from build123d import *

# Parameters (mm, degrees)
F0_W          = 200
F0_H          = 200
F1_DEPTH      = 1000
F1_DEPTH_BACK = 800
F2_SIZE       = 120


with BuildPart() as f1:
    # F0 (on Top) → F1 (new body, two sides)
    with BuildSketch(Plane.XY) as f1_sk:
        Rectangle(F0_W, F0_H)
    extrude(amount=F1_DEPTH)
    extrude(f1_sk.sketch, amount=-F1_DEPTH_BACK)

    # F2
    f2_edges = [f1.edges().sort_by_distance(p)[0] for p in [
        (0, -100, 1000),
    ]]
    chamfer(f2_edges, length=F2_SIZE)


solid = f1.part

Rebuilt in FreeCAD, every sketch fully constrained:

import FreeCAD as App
import Part
import Sketcher
from FreeCAD import Vector


def edges_at(feature, points):
    """Names of the edges that pass closest to the given points."""
    edges = feature.Shape.Edges
    near = lambda p: min(range(len(edges)), key=lambda i: edges[i].distToShape(Part.Vertex(*p))[0])
    return sorted({f"Edge{near(p) + 1}" for p in points})


def add_polygon(sketch, points):
    """Adds a closed chain of lines whose ends are joined by coincident constraints."""
    first, n = sketch.GeometryCount, len(points)
    for a, b in zip(points, points[1:] + points[:1]):
        sketch.addGeometry(Part.LineSegment(App.Vector(*a, 0), App.Vector(*b, 0)), False)
    for i in range(n):
        sketch.addConstraint(Sketcher.Constraint("Coincident", first + i, 2, first + (i + 1) % n, 1))

doc = App.newDocument("Part")
params = doc.addObject("Spreadsheet::Sheet", "Params")
for row, (alias, value) in enumerate([
    ("sketch1_width", "200 mm"),
    ("pad1_length", "1000 mm"),
    ("pad1_length2", "800 mm"),
    ("chamfer_size", "120 mm"),
], start=1):
    params.set(f"A{row}", alias)
    params.set(f"B{row}", "=" + value)
    params.setAlias(f"B{row}", alias)

body = doc.addObject("PartDesign::Body", "Body")

# Sketch on XY plane
sketch1 = body.newObject("Sketcher::SketchObject", "Sketch")
sketch1.AttachmentSupport = (doc.getObject("XY_Plane"), [""])
sketch1.MapMode = "FlatFace"
add_polygon(sketch1, [(-100, 100), (-100, -100), (100, -100), (100, 100)])  # lines 0-3
sketch1.addConstraint([
    Sketcher.Constraint("Vertical", 0),
    Sketcher.Constraint("Horizontal", 1),
    Sketcher.Constraint("Vertical", 2),
    Sketcher.Constraint("Horizontal", 3),
    Sketcher.Constraint("Symmetric", 0, 2, 2, 2, -1, 1),
    Sketcher.Constraint("Equal", 3, 0),
    Sketcher.Constraint("DistanceX", 1, 1, 1, 2, 200.0),
])
sketch1.setExpression("Constraints[10]", "Params.sketch1_width")
pad1 = body.newObject("PartDesign::Pad", "Pad")
pad1.Profile = sketch1
pad1.Type = "TwoLengths"
pad1.setExpression("Length", "Params.pad1_length")
pad1.setExpression("Length2", "Params.pad1_length2")
doc.recompute()

chamfer = body.newObject("PartDesign::Chamfer", "Chamfer")
chamfer.Base = (pad1, edges_at(pad1, [(0, -100, 1000)]))
chamfer.setExpression("Size", "Params.chamfer_size")

doc.recompute()
